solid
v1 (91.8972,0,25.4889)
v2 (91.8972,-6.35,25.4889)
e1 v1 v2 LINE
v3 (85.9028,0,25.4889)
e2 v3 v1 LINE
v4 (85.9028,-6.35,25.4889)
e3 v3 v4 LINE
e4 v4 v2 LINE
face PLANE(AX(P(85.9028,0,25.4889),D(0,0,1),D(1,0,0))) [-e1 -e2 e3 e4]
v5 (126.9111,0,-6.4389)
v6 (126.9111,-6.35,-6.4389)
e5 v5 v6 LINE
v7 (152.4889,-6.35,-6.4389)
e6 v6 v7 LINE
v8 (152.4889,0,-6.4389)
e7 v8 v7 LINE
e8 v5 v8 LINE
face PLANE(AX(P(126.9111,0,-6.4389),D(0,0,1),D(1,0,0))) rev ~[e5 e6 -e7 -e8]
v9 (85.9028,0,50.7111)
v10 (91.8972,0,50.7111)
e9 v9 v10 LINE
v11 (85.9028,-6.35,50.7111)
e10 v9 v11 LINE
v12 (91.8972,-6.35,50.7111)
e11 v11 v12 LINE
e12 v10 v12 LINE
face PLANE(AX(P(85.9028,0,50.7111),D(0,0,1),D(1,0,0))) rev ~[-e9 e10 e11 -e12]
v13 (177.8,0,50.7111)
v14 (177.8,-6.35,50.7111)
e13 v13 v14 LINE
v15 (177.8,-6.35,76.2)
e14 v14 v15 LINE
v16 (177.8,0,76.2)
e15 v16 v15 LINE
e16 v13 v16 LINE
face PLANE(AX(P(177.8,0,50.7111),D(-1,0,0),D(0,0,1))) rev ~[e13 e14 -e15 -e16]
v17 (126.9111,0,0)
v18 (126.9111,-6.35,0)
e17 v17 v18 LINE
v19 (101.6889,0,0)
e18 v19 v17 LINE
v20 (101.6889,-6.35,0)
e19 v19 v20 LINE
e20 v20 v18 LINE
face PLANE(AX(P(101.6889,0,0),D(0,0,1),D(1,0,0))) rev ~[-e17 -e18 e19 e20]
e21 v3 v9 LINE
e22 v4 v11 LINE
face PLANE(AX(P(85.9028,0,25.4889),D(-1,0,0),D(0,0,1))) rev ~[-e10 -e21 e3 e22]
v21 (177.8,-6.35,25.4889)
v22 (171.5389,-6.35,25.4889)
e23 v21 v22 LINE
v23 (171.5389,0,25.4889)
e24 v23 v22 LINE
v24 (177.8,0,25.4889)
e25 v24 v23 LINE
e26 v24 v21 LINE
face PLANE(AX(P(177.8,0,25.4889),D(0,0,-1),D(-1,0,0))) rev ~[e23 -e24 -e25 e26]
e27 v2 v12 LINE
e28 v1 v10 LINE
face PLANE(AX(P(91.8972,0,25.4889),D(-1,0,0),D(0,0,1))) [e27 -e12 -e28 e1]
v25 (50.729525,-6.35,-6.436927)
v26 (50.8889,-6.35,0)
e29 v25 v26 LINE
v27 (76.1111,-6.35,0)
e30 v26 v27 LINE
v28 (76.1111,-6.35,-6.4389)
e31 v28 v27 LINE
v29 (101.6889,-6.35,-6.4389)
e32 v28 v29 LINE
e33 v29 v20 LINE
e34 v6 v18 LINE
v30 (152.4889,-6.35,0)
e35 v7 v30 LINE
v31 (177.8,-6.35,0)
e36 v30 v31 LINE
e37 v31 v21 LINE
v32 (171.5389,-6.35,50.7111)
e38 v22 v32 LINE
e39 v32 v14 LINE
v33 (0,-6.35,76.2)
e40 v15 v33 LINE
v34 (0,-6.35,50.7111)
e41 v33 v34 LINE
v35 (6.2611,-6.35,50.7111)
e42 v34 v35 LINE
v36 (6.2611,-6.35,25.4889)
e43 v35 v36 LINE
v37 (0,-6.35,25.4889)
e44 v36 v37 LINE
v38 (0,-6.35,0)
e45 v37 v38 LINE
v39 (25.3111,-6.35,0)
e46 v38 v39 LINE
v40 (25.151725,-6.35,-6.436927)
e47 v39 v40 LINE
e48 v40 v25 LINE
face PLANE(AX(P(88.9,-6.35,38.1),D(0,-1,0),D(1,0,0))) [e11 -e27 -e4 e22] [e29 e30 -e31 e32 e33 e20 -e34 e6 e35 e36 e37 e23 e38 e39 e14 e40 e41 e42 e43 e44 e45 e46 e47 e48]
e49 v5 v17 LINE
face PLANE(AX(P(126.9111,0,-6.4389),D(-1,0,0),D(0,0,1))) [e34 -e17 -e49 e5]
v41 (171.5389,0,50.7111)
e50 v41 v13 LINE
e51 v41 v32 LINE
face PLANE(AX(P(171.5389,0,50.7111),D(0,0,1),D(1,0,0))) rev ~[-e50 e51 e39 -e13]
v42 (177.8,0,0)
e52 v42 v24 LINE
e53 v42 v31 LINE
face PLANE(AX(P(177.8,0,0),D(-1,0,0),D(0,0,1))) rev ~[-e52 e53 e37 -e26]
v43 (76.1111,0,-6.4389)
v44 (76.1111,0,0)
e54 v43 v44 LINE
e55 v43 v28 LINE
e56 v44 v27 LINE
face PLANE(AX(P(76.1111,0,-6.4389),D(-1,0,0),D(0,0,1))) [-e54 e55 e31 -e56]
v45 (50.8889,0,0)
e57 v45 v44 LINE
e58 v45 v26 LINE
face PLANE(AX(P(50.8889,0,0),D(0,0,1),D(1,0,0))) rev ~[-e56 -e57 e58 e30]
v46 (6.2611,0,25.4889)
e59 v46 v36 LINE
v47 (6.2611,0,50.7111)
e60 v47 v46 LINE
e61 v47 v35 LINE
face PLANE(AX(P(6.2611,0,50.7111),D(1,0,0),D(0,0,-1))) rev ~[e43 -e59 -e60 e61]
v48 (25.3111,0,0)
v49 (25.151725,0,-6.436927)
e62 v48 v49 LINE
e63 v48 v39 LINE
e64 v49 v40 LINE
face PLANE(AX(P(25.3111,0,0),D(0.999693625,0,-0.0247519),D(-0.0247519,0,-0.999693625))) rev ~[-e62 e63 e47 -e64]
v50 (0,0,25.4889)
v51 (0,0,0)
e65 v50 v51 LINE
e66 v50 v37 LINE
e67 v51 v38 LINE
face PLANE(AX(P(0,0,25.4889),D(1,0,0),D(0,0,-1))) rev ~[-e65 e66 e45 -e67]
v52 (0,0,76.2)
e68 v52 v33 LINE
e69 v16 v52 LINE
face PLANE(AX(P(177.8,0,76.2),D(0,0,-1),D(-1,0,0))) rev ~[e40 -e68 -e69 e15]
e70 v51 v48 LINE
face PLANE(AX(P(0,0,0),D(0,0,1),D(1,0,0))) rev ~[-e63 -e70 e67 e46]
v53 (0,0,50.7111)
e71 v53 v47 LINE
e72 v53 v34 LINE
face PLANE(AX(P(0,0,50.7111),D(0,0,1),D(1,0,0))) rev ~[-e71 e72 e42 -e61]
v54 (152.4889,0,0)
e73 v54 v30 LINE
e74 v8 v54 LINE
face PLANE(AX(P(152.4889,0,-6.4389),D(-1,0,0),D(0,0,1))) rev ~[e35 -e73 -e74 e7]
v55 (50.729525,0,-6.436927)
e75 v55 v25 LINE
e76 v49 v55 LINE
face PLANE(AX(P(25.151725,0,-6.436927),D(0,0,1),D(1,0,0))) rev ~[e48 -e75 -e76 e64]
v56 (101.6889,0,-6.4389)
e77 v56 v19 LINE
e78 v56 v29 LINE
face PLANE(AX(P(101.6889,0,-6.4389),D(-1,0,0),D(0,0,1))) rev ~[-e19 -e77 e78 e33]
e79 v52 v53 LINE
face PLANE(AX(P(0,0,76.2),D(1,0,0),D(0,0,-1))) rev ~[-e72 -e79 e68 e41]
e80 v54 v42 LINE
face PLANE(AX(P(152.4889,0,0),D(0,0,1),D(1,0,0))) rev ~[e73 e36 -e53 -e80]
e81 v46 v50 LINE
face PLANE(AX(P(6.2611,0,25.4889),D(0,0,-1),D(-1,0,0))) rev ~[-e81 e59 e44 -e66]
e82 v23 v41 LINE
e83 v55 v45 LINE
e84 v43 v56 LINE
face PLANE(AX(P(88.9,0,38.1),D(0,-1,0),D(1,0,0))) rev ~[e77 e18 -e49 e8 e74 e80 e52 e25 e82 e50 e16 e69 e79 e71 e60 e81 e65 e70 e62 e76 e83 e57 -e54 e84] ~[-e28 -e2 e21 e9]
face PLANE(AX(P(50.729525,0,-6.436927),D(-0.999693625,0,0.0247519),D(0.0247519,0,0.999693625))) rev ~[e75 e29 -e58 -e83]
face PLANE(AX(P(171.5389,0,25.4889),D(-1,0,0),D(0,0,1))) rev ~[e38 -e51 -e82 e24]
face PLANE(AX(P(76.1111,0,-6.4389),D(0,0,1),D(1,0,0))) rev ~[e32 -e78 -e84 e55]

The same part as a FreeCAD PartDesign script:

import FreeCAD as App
import Part
import Sketcher
from FreeCAD import Vector
Q = App.Units.Quantity

doc = App.newDocument("Part")
body = doc.addObject("PartDesign::Body", "Body")

sketch1 = body.newObject("Sketcher::SketchObject", "Sketch")
sketch1.AttachmentSupport = (doc.getObject("XZ_Plane"), [""])
sketch1.MapMode = "FlatFace"
sketch1.addGeometry([
    Part.LineSegment(Vector(0, 25, 0), Vector(0, 0, 0)),
    Part.LineSegment(Vector(0, 0, 0), Vector(25, 0, 0)),
    Part.LineSegment(Vector(25, 0, 0), Vector(25, -6, 0)),
    Part.LineSegment(Vector(25, -6, 0), Vector(51, -6, 0)),
    Part.LineSegment(Vector(51, -6, 0), Vector(51, 0, 0)),
    Part.LineSegment(Vector(51, 0, 0), Vector(76, 0, 0)),
    Part.LineSegment(Vector(76, 0, 0), Vector(76, -6, 0)),
    Part.LineSegment(Vector(76, -6, 0), Vector(102, -6, 0)),
    Part.LineSegment(Vector(102, -6, 0), Vector(102, 0, 0)),
    Part.LineSegment(Vector(102, 0, 0), Vector(127, 0, 0)),
    Part.LineSegment(Vector(127, 0, 0), Vector(127, -6, 0)),
    Part.LineSegment(Vector(127, -6, 0), Vector(152, -6, 0)),
    Part.LineSegment(Vector(152, -6, 0), Vector(152, 0, 0)),
    Part.LineSegment(Vector(152, 0, 0), Vector(178, 0, 0)),
    Part.LineSegment(Vector(178, 0, 0), Vector(178, 25, 0)),
    Part.LineSegment(Vector(178, 25, 0), Vector(172, 25, 0)),
    Part.LineSegment(Vector(172, 25, 0), Vector(172, 51, 0)),
    Part.LineSegment(Vector(172, 51, 0), Vector(178, 51, 0)),
    Part.LineSegment(Vector(178, 51, 0), Vector(178, 76, 0)),
    Part.LineSegment(Vector(178, 76, 0), Vector(0, 76, 0)),
    Part.LineSegment(Vector(0, 76, 0), Vector(0, 51, 0)),
    Part.LineSegment(Vector(0, 51, 0), Vector(6, 51, 0)),
    Part.LineSegment(Vector(6, 51, 0), Vector(6, 25, 0)),
    Part.LineSegment(Vector(6, 25, 0), Vector(0, 25, 0)),
    Part.LineSegment(Vector(92, 25, 0), Vector(86, 25, 0)),
    Part.LineSegment(Vector(86, 25, 0), Vector(86, 51, 0)),
    Part.LineSegment(Vector(86, 51, 0), Vector(92, 51, 0)),
    Part.LineSegment(Vector(92, 51, 0), Vector(92, 25, 0)),
], False)
sketch1.addConstraint([
    Sketcher.Constraint("Coincident", 0, 2, 1, 1),
    Sketcher.Constraint("Coincident", 1, 2, 2, 1),
    Sketcher.Constraint("Coincident", 2, 2, 3, 1),
    Sketcher.Constraint("Coincident", 3, 2, 4, 1),
    Sketcher.Constraint("Coincident", 4, 2, 5, 1),
    Sketcher.Constraint("Coincident", 5, 2, 6, 1),
    Sketcher.Constraint("Coincident", 6, 2, 7, 1),
    Sketcher.Constraint("Coincident", 7, 2, 8, 1),
    Sketcher.Constraint("Coincident", 8, 2, 9, 1),
    Sketcher.Constraint("Coincident", 9, 2, 10, 1),
    Sketcher.Constraint("Coincident", 10, 2, 11, 1),
    Sketcher.Constraint("Coincident", 11, 2, 12, 1),
    Sketcher.Constraint("Coincident", 12, 2, 13, 1),
    Sketcher.Constraint("Coincident", 13, 2, 14, 1),
    Sketcher.Constraint("Coincident", 14, 2, 15, 1),
    Sketcher.Constraint("Coincident", 15, 2, 16, 1),
    Sketcher.Constraint("Coincident", 16, 2, 17, 1),
    Sketcher.Constraint("Coincident", 17, 2, 18, 1),
    Sketcher.Constraint("Coincident", 18, 2, 19, 1),
    Sketcher.Constraint("Coincident", 19, 2, 20, 1),
    Sketcher.Constraint("Coincident", 20, 2, 21, 1),
    Sketcher.Constraint("Coincident", 21, 2, 22, 1),
    Sketcher.Constraint("Coincident", 22, 2, 23, 1),
    Sketcher.Constraint("Coincident", 23, 2, 0, 1),
    Sketcher.Constraint("Coincident", 24, 2, 25, 1),
    Sketcher.Constraint("Coincident", 25, 2, 26, 1),
    Sketcher.Constraint("Coincident", 26, 2, 27, 1),
    Sketcher.Constraint("Coincident", 27, 2, 24, 1),
    Sketcher.Constraint("Vertical", 0),
    Sketcher.Constraint("Horizontal", 1),
    Sketcher.Constraint("Horizontal", 3),
    Sketcher.Constraint("Horizontal", 5),
    Sketcher.Constraint("Vertical", 6),
    Sketcher.Constraint("Horizontal", 7),
    Sketcher.Constraint("Vertical", 8),
    Sketcher.Constraint("Horizontal", 9),
    Sketcher.Constraint("Vertical", 10),
    Sketcher.Constraint("Horizontal", 11),
    Sketcher.Constraint("Vertical", 12),
    Sketcher.Constraint("Horizontal", 13),
    Sketcher.Constraint("Vertical", 14),
    Sketcher.Constraint("Horizontal", 15),
    Sketcher.Constraint("Vertical", 16),
    Sketcher.Constraint("Horizontal", 17),
    Sketcher.Constraint("Vertical", 18),
    Sketcher.Constraint("Horizontal", 19),
    Sketcher.Constraint("Vertical", 20),
    Sketcher.Constraint("Horizontal", 21),
    Sketcher.Constraint("Vertical", 22),
    Sketcher.Constraint("Horizontal", 23),
    Sketcher.Constraint("Horizontal", 24),
    Sketcher.Constraint("Vertical", 25),
    Sketcher.Constraint("Horizontal", 26),
    Sketcher.Constraint("Vertical", 27),
    Sketcher.Constraint("Coincident", 0, 2, -1, 1),
    Sketcher.Constraint("PointOnObject", 4, 2, -1),
    Sketcher.Constraint("PointOnObject", 8, 2, -1),
    Sketcher.Constraint("PointOnObject", 12, 2, -1),
    Sketcher.Constraint("PointOnObject", 19, 2, -2),
    Sketcher.Constraint("Parallel", 2, 4),
    Sketcher.Constraint("Horizontal", 7, 2, 10, 2),
    Sketcher.Constraint("Horizontal", 17, 2, 20, 2),
    Sketcher.Constraint("Horizontal", 15, 2, 22, 2),
    Sketcher.Constraint("Horizontal", 23, 2, 24, 2),
    Sketcher.Constraint("Horizontal", 21, 2, 25, 2),
    Sketcher.Constraint("Vertical", 14, 2, 17, 2),
    Sketcher.Constraint("Equal", 3, 7),
    Sketcher.Constraint("Equal", 5, 9),
    Sketcher.Constraint("Equal", 7, 11),
    Sketcher.Constraint("Equal", 1, 13),
    Sketcher.Constraint("Equal", 17, 21),
    Sketcher.Constraint("Equal", 9, 16),
    Sketcher.Constraint("Equal", 14, 18),
    Sketcher.Constraint("DistanceX", 19, 2, 19, 1, Q("7 in")),
    Sketcher.Constraint("DistanceY", -1, 1, 18, 2, Q("3 in")),
    Sketcher.Constraint("DistanceX", 1, 2, 5, 2, Q("2 in")),
    Sketcher.Constraint("DistanceX", 3, 1, 3, 2, Q("1.007 in")),
    Sketcher.Constraint("DistanceX", 24, 2, 24, 1, Q("0.236 in")),
    Sketcher.Constraint("DistanceX", 12, 2, 15, 2, Q("0.75 in")),
    Sketcher.Constraint("DistanceY", 11, 2, 16, 2, Q("2.25 in")),
    Sketcher.Constraint("DistanceX", -1, 1, 24, 2, Q("3.382 in")),
    Sketcher.Constraint("Distance", 2, Q("0.2535 in")),
    Sketcher.Constraint("DistanceX", -1, 1, 2, 2, Q("25.151725 mm")),
])
pad1 = body.newObject("PartDesign::Pad", "Pad")
pad1.Profile = sketch1
pad1.Length = Q("0.25 in")

doc.recompute()
